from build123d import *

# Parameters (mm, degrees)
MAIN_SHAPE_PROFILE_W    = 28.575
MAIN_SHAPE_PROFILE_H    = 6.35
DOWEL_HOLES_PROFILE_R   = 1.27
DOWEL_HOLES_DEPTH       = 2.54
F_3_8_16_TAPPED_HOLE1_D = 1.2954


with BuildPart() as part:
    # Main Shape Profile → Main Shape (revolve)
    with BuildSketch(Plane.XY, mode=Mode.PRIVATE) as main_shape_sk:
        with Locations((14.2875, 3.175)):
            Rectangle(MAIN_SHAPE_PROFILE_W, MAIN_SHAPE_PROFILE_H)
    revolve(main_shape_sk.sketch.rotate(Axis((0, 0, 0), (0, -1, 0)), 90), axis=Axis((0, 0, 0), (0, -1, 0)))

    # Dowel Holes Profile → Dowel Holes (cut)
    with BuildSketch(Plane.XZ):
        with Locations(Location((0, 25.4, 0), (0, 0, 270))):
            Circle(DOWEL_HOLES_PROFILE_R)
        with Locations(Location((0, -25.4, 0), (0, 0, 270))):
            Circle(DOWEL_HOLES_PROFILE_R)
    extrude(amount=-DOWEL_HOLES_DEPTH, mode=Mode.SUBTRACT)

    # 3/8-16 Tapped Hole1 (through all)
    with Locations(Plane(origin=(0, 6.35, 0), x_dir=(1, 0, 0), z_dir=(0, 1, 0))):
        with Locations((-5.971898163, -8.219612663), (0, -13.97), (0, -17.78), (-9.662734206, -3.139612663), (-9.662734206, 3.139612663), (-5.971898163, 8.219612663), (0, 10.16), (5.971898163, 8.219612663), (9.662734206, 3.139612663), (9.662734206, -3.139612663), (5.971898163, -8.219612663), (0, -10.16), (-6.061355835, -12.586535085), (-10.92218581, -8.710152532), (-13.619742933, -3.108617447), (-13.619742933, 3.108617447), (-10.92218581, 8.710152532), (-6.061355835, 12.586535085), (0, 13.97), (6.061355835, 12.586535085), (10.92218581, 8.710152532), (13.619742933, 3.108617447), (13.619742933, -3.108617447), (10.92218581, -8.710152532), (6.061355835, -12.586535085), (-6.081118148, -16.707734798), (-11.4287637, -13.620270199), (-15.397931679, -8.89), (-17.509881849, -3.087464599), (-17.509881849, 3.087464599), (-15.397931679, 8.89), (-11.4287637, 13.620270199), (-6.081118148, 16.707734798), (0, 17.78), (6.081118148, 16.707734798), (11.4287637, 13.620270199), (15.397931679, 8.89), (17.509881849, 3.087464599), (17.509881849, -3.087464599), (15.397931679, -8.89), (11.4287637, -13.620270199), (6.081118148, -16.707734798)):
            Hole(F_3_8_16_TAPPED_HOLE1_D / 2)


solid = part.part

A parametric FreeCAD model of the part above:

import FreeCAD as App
import Part
import Sketcher
Q = App.Units.Quantity

doc = App.newDocument("Part")
body = doc.addObject("PartDesign::Body", "Body")

# Sketch on XY plane
sketch1 = body.newObject("Sketcher::SketchObject", "Sketch")
sketch1.AttachmentSupport = (doc.getObject("XY_Plane"), [""])
sketch1.MapMode = "FlatFace"
sketch1.addGeometry(Part.LineSegment(App.Vector(0, 6, 0), App.Vector(0, 0, 0)), False)
sketch1.addGeometry(Part.LineSegment(App.Vector(0, 0, 0), App.Vector(29, 0, 0)), False)
sketch1.addGeometry(Part.LineSegment(App.Vector(29, 0, 0), App.Vector(29, 6, 0)), False)
sketch1.addGeometry(Part.LineSegment(App.Vector(29, 6, 0), App.Vector(0, 6, 0)), False)
sketch1.addConstraint(Sketcher.Constraint("Coincident", 0, 2, 1, 1))
sketch1.addConstraint(Sketcher.Constraint("Coincident", 1, 2, 2, 1))
sketch1.addConstraint(Sketcher.Constraint("Coincident", 2, 2, 3, 1))
sketch1.addConstraint(Sketcher.Constraint("Coincident", 3, 2, 0, 1))
sketch1.addConstraint(Sketcher.Constraint("Vertical", 0))
sketch1.addConstraint(Sketcher.Constraint("Horizontal", 1))
sketch1.addConstraint(Sketcher.Constraint("Vertical", 2))
sketch1.addConstraint(Sketcher.Constraint("Horizontal", 3))
sketch1.addConstraint(Sketcher.Constraint("Coincident", 0, 2, -1, 1))
sketch1.addConstraint(Sketcher.Constraint("DistanceY", 0, 2, 0, 1, Q("0.25 in")))
sketch1.addConstraint(Sketcher.Constraint("DistanceX", 1, 1, 1, 2, Q("1.125 in")))
revolution = body.newObject("PartDesign::Revolution", "Revolution")
revolution.Profile = sketch1
revolution.ReferenceAxis = (sketch1, ["V_Axis"])
revolution.Angle = 360

# Sketch on XZ plane
sketch2 = body.newObject("Sketcher::SketchObject", "Sketch001")
sketch2.AttachmentSupport = (doc.getObject("XZ_Plane"), [""])
sketch2.MapMode = "FlatFace"
sketch2.addGeometry(Part.Circle(App.Vector(0, 25.4, 0), App.Vector(0, 0, 1), 1.3), False)
sketch2.addGeometry(Part.Circle(App.Vector(0, -25.4, 0), App.Vector(0, 0, 1), 1.3), False)
sketch2.addConstraint(Sketcher.Constraint("Equal", 0, 1))
sketch2.addConstraint(Sketcher.Constraint("Symmetric", 0, 3, 1, 3, -1, 1))
sketch2.addConstraint(Sketcher.Constraint("PointOnObject", 0, 3, -2))
sketch2.addConstraint(Sketcher.Constraint("Diameter", 0, Q("0.1 in")))
sketch2.addConstraint(Sketcher.Constraint("DistanceY", -1, 1, 0, 3, Q("1 in")))
pocket1 = body.newObject("PartDesign::Pocket", "Pocket")
pocket1.Profile = sketch2
pocket1.Length = Q("0.1 in")

# Sketch on XZ plane
sketch3 = body.newObject("Sketcher::SketchObject", "Sketch002")
sketch3.AttachmentSupport = (doc.getObject("XZ_Plane"), [""])
sketch3.MapMode = "FlatFace"
sketch3.AttachmentOffset = App.Placement(App.Vector(0, 0, -0.25 * 25.4), App.Rotation())
sketch3.addGeometry(Part.Circle(App.Vector(-6, 8.2, 0), App.Vector(0, 0, 1), 0.6), False)
sketch3.addGeometry(Part.Circle(App.Vector(0, 14, 0), App.Vector(0, 0, 1), 0.6), False)
sketch3.addGeometry(Part.Circle(App.Vector(0, 17.8, 0), App.Vector(0, 0, 1), 0.6), False)
sketch3.addGeometry(Part.Circle(App.Vector(-9.7, 3.1, 0), App.Vector(0, 0, 1), 0.6), False)
sketch3.addGeometry(Part.Circle(App.Vector(-9.7, -3.1, 0), App.Vector(0, 0, 1), 0.6), False)
sketch3.addGeometry(Part.Circle(App.Vector(-6, -8.2, 0), App.Vector(0, 0, 1), 0.6), False)
sketch3.addGeometry(Part.Circle(App.Vector(0, -10.2, 0), App.Vector(0, 0, 1), 0.6), False)
sketch3.addGeometry(Part.Circle(App.Vector(6, -8.2, 0), App.Vector(0, 0, 1), 0.6), False)
sketch3.addGeometry(Part.Circle(App.Vector(9.7, -3.1, 0), App.Vector(0, 0, 1), 0.6), False)
sketch3.addGeometry(Part.Circle(App.Vector(9.7, 3.1, 0), App.Vector(0, 0, 1), 0.6), False)
sketch3.addGeometry(Part.Circle(App.Vector(6, 8.2, 0), App.Vector(0, 0, 1), 0.6), False)
sketch3.addGeometry(Part.Circle(App.Vector(0, 10.2, 0), App.Vector(0, 0, 1), 0.6), False)
sketch3.addGeometry(Part.Circle(App.Vector(-6.1, 12.6, 0), App.Vector(0, 0, 1), 0.6), False)
sketch3.addGeometry(Part.Circle(App.Vector(-10.9, 8.7, 0), App.Vector(0, 0, 1), 0.6), False)
sketch3.addGeometry(Part.Circle(App.Vector(-13.6, 3.1, 0), App.Vector(0, 0, 1), 0.6), False)
sketch3.addGeometry(Part.Circle(App.Vector(-13.6, -3.1, 0), App.Vector(0, 0, 1), 0.6), False)
sketch3.addGeometry(Part.Circle(App.Vector(-10.9, -8.7, 0), App.Vector(0, 0, 1), 0.6), False)
sketch3.addGeometry(Part.Circle(App.Vector(-6.1, -12.6, 0), App.Vector(0, 0, 1), 0.6), False)
sketch3.addGeometry(Part.Circle(App.Vector(0, -14, 0), App.Vector(0, 0, 1), 0.6), False)
sketch3.addGeometry(Part.Circle(App.Vector(6.1, -12.6, 0), App.Vector(0, 0, 1), 0.6), False)
sketch3.addGeometry(Part.Circle(App.Vector(10.9, -8.7, 0), App.Vector(0, 0, 1), 0.6), False)
sketch3.addGeometry(Part.Circle(App.Vector(13.6, -3.1, 0), App.Vector(0, 0, 1), 0.6), False)
sketch3.addGeometry(Part.Circle(App.Vector(13.6, 3.1, 0), App.Vector(0, 0, 1), 0.6), False)
sketch3.addGeometry(Part.Circle(App.Vector(10.9, 8.7, 0), App.Vector(0, 0, 1), 0.6), False)
sketch3.addGeometry(Part.Circle(App.Vector(6.1, 12.6, 0), App.Vector(0, 0, 1), 0.6), False)
sketch3.addGeometry(Part.Circle(App.Vector(-6.1, 16.7, 0), App.Vector(0, 0, 1), 0.6), False)
sketch3.addGeometry(Part.Circle(App.Vector(-11.4, 13.6, 0), App.Vector(0, 0, 1), 0.6), False)
sketch3.addGeometry(Part.Circle(App.Vector(-15.4, 8.9, 0), App.Vector(0, 0, 1), 0.6), False)
sketch3.addGeometry(Part.Circle(App.Vector(-17.5, 3.1, 0), App.Vector(0, 0, 1), 0.6), False)
sketch3.addGeometry(Part.Circle(App.Vector(-17.5, -3.1, 0), App.Vector(0, 0, 1), 0.6), False)
sketch3.addGeometry(Part.Circle(App.Vector(-15.4, -8.9, 0), App.Vector(0, 0, 1), 0.6), False)
sketch3.addGeometry(Part.Circle(App.Vector(-11.4, -13.6, 0), App.Vector(0, 0, 1), 0.6), False)
sketch3.addGeometry(Part.Circle(App.Vector(-6.1, -16.7, 0), App.Vector(0, 0, 1), 0.6), False)
sketch3.addGeometry(Part.Circle(App.Vector(0, -17.8, 0), App.Vector(0, 0, 1), 0.6), False)
sketch3.addGeometry(Part.Circle(App.Vector(6.1, -16.7, 0), App.Vector(0, 0, 1), 0.6), False)
sketch3.addGeometry(Part.Circle(App.Vector(11.4, -13.6, 0), App.Vector(0, 0, 1), 0.6), False)
sketch3.addGeometry(Part.Circle(App.Vector(15.4, -8.9, 0), App.Vector(0, 0, 1), 0.6), False)
sketch3.addGeometry(Part.Circle(App.Vector(17.5, -3.1, 0), App.Vector(0, 0, 1), 0.6), False)
sketch3.addGeometry(Part.Circle(App.Vector(17.5, 3.1, 0), App.Vector(0, 0, 1), 0.6), False)
sketch3.addGeometry(Part.Circle(App.Vector(15.4, 8.9, 0), App.Vector(0, 0, 1), 0.6), False)
sketch3.addGeometry(Part.Circle(App.Vector(11.4, 13.6, 0), App.Vector(0, 0, 1), 0.6), False)
sketch3.addGeometry(Part.Circle(App.Vector(6.1, 16.7, 0), App.Vector(0, 0, 1), 0.6), False)
sketch3.addConstraint(Sketcher.Constraint("Equal", 0, 1))
sketch3.addConstraint(Sketcher.Constraint("Equal", 1, 2))
sketch3.addConstraint(Sketcher.Constraint("Equal", 2, 3))
sketch3.addConstraint(Sketcher.Constraint("Equal", 3, 4))
sketch3.addConstraint(Sketcher.Constraint("Equal", 4, 5))
sketch3.addConstraint(Sketcher.Constraint("Equal", 5, 6))
sketch3.addConstraint(Sketcher.Constraint("Equal", 6, 7))
sketch3.addConstraint(Sketcher.Constraint("Equal", 7, 8))
sketch3.addConstraint(Sketcher.Constraint("Equal", 8, 9))
sketch3.addConstraint(Sketcher.Constraint("Equal", 9, 10))
sketch3.addConstraint(Sketcher.Constraint("Equal", 10, 11))
sketch3.addConstraint(Sketcher.Constraint("Equal", 11, 12))
sketch3.addConstraint(Sketcher.Constraint("Equal", 12, 13))
sketch3.addConstraint(Sketcher.Constraint("Equal", 13, 14))
sketch3.addConstraint(Sketcher.Constraint("Equal", 14, 15))
sketch3.addConstraint(Sketcher.Constraint("Equal", 15, 16))
sketch3.addConstraint(Sketcher.Constraint("Equal", 16, 17))
sketch3.addConstraint(Sketcher.Constraint("Equal", 17, 18))
sketch3.addConstraint(Sketcher.Constraint("Equal", 18, 19))
sketch3.addConstraint(Sketcher.Constraint("Equal", 19, 20))
sketch3.addConstraint(Sketcher.Constraint("Equal", 20, 21))
sketch3.addConstraint(Sketcher.Constraint("Equal", 21, 22))
sketch3.addConstraint(Sketcher.Constraint("Equal", 22, 23))
sketch3.addConstraint(Sketcher.Constraint("Equal", 23, 24))
sketch3.addConstraint(Sketcher.Constraint("Equal", 24, 25))
sketch3.addConstraint(Sketcher.Constraint("Equal", 25, 26))
sketch3.addConstraint(Sketcher.Constraint("Equal", 26, 27))
sketch3.addConstraint(Sketcher.Constraint("Equal", 27, 28))
sketch3.addConstraint(Sketcher.Constraint("Equal", 28, 29))
sketch3.addConstraint(Sketcher.Constraint("Equal", 29, 30))
sketch3.addConstraint(Sketcher.Constraint("Equal", 30, 31))
sketch3.addConstraint(Sketcher.Constraint("Equal", 31, 32))
sketch3.addConstraint(Sketcher.Constraint("Equal", 32, 33))
sketch3.addConstraint(Sketcher.Constraint("Equal", 33, 34))
sketch3.addConstraint(Sketcher.Constraint("Equal", 34, 35))
sketch3.addConstraint(Sketcher.Constraint("Equal", 35, 36))
sketch3.addConstraint(Sketcher.Constraint("Equal", 36, 37))
sketch3.addConstraint(Sketcher.Constraint("Equal", 37, 38))
sketch3.addConstraint(Sketcher.Constraint("Equal", 38, 39))
sketch3.addConstraint(Sketcher.Constraint("Equal", 39, 40))
sketch3.addConstraint(Sketcher.Constraint("Equal", 40, 41))
sketch3.addConstraint(Sketcher.Constraint("Symmetric", 0, 3, 7, 3, -1, 1))
sketch3.addConstraint(Sketcher.Constraint("Symmetric", 3, 3, 8, 3, -1, 1))
sketch3.addConstraint(Sketcher.Constraint("Symmetric", 4, 3, 9, 3, -1, 1))
sketch3.addConstraint(Sketcher.Constraint("Symmetric", 5, 3, 10, 3, -1, 1))
sketch3.addConstraint(Sketcher.Constraint("Symmetric", 6, 3, 11, 3, -1, 1))
sketch3.addConstraint(Sketcher.Constraint("Symmetric", 1, 3, 18, 3, -1, 1))
sketch3.addConstraint(Sketcher.Constraint("Symmetric", 12, 3, 19, 3, -1, 1))
sketch3.addConstraint(Sketcher.Constraint("Symmetric", 13, 3, 20, 3, -1, 1))
sketch3.addConstraint(Sketcher.Constraint("Symmetric", 14, 3, 21, 3, -1, 1))
sketch3.addConstraint(Sketcher.Constraint("Symmetric", 15, 3, 22, 3, -1, 1))
sketch3.addConstraint(Sketcher.Constraint("Symmetric", 16, 3, 23, 3, -1, 1))
sketch3.addConstraint(Sketcher.Constraint("Symmetric", 17, 3, 24, 3, -1, 1))
sketch3.addConstraint(Sketcher.Constraint("Symmetric", 2, 3, 33, 3, -1, 1))
sketch3.addConstraint(Sketcher.Constraint("Symmetric", 25, 3, 34, 3, -1, 1))
sketch3.addConstraint(Sketcher.Constraint("Symmetric", 26, 3, 35, 3, -1, 1))
sketch3.addConstraint(Sketcher.Constraint("Symmetric", 27, 3, 36, 3, -1, 1))
sketch3.addConstraint(Sketcher.Constraint("Symmetric", 28, 3, 37, 3, -1, 1))
sketch3.addConstraint(Sketcher.Constraint("Symmetric", 29, 3, 38, 3, -1, 1))
sketch3.addConstraint(Sketcher.Constraint("Symmetric", 30, 3, 39, 3, -1, 1))
sketch3.addConstraint(Sketcher.Constraint("Symmetric", 31, 3, 40, 3, -1, 1))
sketch3.addConstraint(Sketcher.Constraint("Symmetric", 32, 3, 41, 3, -1, 1))
sketch3.addConstraint(Sketcher.Constraint("Symmetric", 5, 3, 7, 3, -2))
sketch3.addConstraint(Sketcher.Constraint("Symmetric", 4, 3, 8, 3, -2))
sketch3.addConstraint(Sketcher.Constraint("Symmetric", 17, 3, 19, 3, -2))
sketch3.addConstraint(Sketcher.Constraint("Symmetric", 16, 3, 20, 3, -2))
sketch3.addConstraint(Sketcher.Constraint("Symmetric", 15, 3, 21, 3, -2))
sketch3.addConstraint(Sketcher.Constraint("Symmetric", 32, 3, 34, 3, -2))
sketch3.addConstraint(Sketcher.Constraint("Symmetric", 31, 3, 35, 3, -2))
sketch3.addConstraint(Sketcher.Constraint("Symmetric", 30, 3, 36, 3, -2))
sketch3.addConstraint(Sketcher.Constraint("Symmetric", 29, 3, 37, 3, -2))
sketch3.addConstraint(Sketcher.Constraint("PointOnObject", 1, 3, -2))
sketch3.addConstraint(Sketcher.Constraint("PointOnObject", 2, 3, -2))
sketch3.addConstraint(Sketcher.Constraint("PointOnObject", 6, 3, -2))
sketch3.addConstraint(Sketcher.Constraint("Diameter", 0, Q("0.051 in")))
sketch3.addConstraint(Sketcher.Constraint("DistanceY", -1, 1, 2, 3, Q("0.7 in")))
sketch3.addConstraint(Sketcher.Constraint("DistanceY", 6, 3, -1, 1, Q("0.4 in")))
sketch3.addConstraint(Sketcher.Constraint("DistanceY", 3, 3, 0, 3, Q("0.2 in")))
sketch3.addConstraint(Sketcher.Constraint("DistanceY", -1, 1, 1, 3, Q("0.55 in")))
sketch3.addConstraint(Sketcher.Constraint("DistanceY", -1, 1, 27, 3, Q("0.35 in")))
sketch3.addConstraint(Sketcher.Constraint("DistanceX", 25, 3, 0, 3, Q("0.0043 in")))
sketch3.addConstraint(Sketcher.Constraint("DistanceX", 0, 3, -1, 1, 5.971898))
sketch3.addConstraint(Sketcher.Constraint("DistanceY", 12, 3, 25, 3, 4.1212))
sketch3.addConstraint(Sketcher.Constraint("DistanceY", -1, 1, 26, 3, 13.62027))
sketch3.addConstraint(Sketcher.Constraint("DistanceX", 27, 3, -1, 1, 15.397932))
sketch3.addConstraint(Sketcher.Constraint("DistanceX", 28, 3, -1, 1, 17.509882))
sketch3.addConstraint(Sketcher.Constraint("DistanceX", 4, 3, 8, 3, 19.325468))
sketch3.addConstraint(Sketcher.Constraint("DistanceX", 3, 3, 12, 3, 3.601378))
sketch3.addConstraint(Sketcher.Constraint("DistanceY", 0, 3, 13, 3, 0.49054))
sketch3.addConstraint(Sketcher.Constraint("DistanceX", 13, 3, 3, 3, 1.259452))
sketch3.addConstraint(Sketcher.Constraint("DistanceX", 14, 3, 3, 3, 3.957009))
sketch3.addConstraint(Sketcher.Constraint("DistanceY", 4, 3, 14, 3, 6.24823))
sketch3.addConstraint(Sketcher.Constraint("DistanceX", 26, 3, 3, 3, 1.766029))
sketch3.addConstraint(Sketcher.Constraint("DistanceY", 28, 3, 3, 3, 0.052148))
sketch3.addConstraint(Sketcher.Constraint("DistanceY", 29, 3, 28, 3, 6.174929))
sketch3.addConstraint(Sketcher.Constraint("DistanceY", -1, 1, 12, 3, 12.586535))
doc.recompute()
hole = body.newObject("PartDesign::Hole", "Hole")
hole.Profile = sketch3
hole.ThreadType = "None"
hole.Diameter = Q("0.051 in")
hole.DepthType = "ThroughAll"
hole.Reversed = True

doc.recompute()
